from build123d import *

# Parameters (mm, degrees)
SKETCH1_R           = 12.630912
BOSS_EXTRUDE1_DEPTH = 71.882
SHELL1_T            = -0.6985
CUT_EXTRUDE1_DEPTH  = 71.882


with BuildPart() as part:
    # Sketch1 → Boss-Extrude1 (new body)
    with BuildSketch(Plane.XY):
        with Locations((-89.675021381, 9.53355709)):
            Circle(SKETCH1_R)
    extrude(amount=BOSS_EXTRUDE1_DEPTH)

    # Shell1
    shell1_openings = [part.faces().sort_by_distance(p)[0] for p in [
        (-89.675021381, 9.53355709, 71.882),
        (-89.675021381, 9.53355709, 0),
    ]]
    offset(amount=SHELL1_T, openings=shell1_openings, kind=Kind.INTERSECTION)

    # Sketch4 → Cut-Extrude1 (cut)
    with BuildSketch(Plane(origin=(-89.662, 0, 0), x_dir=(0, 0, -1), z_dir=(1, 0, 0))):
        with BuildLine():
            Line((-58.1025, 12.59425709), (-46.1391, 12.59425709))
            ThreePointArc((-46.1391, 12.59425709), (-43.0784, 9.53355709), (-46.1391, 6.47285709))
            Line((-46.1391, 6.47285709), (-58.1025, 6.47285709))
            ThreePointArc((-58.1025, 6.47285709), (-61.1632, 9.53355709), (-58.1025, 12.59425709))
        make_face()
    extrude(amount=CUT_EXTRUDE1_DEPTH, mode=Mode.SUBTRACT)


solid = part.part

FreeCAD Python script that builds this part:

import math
import FreeCAD as App
import Part
import Sketcher
Q = App.Units.Quantity


def faces_at(feature, points):
    """Names of the faces that lie closest to the given points."""
    faces = feature.Shape.Faces
    near = lambda p: min(range(len(faces)), key=lambda i: faces[i].distToShape(Part.Vertex(*p))[0])
    return sorted({f"Face{near(p) + 1}" for p in points})

doc = App.newDocument("Part")
body = doc.addObject("PartDesign::Body", "Body")

sketch1 = body.newObject("Sketcher::SketchObject", "Sketch")
sketch1.AttachmentSupport = (doc.getObject("XY_Plane"), [""])
sketch1.MapMode = "FlatFace"
sketch1.addGeometry(Part.Circle(App.Vector(-89.675021, 9.533557, 0), App.Vector(0, 0, 1), 12.630912), False)
sketch1.addConstraint(Sketcher.Constraint("Diameter", 0, 25.261824))
sketch1.addConstraint(Sketcher.Constraint("DistanceX", 0, 3, -1, 1, 89.675021))
sketch1.addConstraint(Sketcher.Constraint("DistanceY", -1, 1, 0, 3, 9.533557))
pad1 = body.newObject("PartDesign::Pad", "Pad")
pad1.Profile = sketch1
pad1.Length = Q("2.83 in")
doc.recompute()

thickness = body.newObject("PartDesign::Thickness", "Thickness")
thickness.Base = (pad1, faces_at(pad1, [(-89.675, 9.534, 71.882), (-89.675, 9.534, 0)]))
thickness.Value = Q("0.0275 in")
thickness.Reversed = True
thickness.Join = "Intersection"

sketch2 = body.newObject("Sketcher::SketchObject", "Sketch001")
sketch2.AttachmentSupport = (doc.getObject("YZ_Plane"), [""])
sketch2.MapMode = "FlatFace"
sketch2.AttachmentOffset = App.Placement(App.Vector(0, 0, -3.53 * 25.4), App.Rotation())
sketch2.addGeometry(Part.LineSegment(App.Vector(12.594257, 46.1391, 0), App.Vector(12.594257, 58.1025, 0)), False)
sketch2.addGeometry(Part.ArcOfCircle(Part.Circle(App.Vector(9.533557, 58.1025, 0), App.Vector(0, 0, 1), 3.0607), math.radians(0), math.radians(180)), False)
sketch2.addGeometry(Part.LineSegment(App.Vector(6.472857, 58.1025, 0), App.Vector(6.472857, 46.1391, 0)), False)
sketch2.addGeometry(Part.ArcOfCircle(Part.Circle(App.Vector(9.533557, 46.1391, 0), App.Vector(0, 0, 1), 3.0607), math.radians(180), math.radians(360)), False)
sketch2.addConstraint(Sketcher.Constraint("Tangent", 0, 2, 1, 1))
sketch2.addConstraint(Sketcher.Constraint("Tangent", 1, 2, 2, 1))
sketch2.addConstraint(Sketcher.Constraint("Tangent", 2, 2, 3, 1))
sketch2.addConstraint(Sketcher.Constraint("Tangent", 3, 2, 0, 1))
sketch2.addConstraint(Sketcher.Constraint("Vertical", 0))
sketch2.addConstraint(Sketcher.Constraint("Vertical", 2))
sketch2.addConstraint(Sketcher.Constraint("Radius", 1, Q("0.1205 in")))
sketch2.addConstraint(Sketcher.Constraint("DistanceY", 0, 1, 0, 2, Q("0.471 in")))
sketch2.addConstraint(Sketcher.Constraint("DistanceY", -1, 1, 1, 3, Q("2.2875 in")))
sketch2.addConstraint(Sketcher.Constraint("DistanceX", -1, 1, 1, 3, 9.533557))
pocket1 = body.newObject("PartDesign::Pocket", "Pocket")
pocket1.Profile = sketch2
pocket1.Length = Q("2.83 in")
pocket1.Reversed = True

doc.recompute()
